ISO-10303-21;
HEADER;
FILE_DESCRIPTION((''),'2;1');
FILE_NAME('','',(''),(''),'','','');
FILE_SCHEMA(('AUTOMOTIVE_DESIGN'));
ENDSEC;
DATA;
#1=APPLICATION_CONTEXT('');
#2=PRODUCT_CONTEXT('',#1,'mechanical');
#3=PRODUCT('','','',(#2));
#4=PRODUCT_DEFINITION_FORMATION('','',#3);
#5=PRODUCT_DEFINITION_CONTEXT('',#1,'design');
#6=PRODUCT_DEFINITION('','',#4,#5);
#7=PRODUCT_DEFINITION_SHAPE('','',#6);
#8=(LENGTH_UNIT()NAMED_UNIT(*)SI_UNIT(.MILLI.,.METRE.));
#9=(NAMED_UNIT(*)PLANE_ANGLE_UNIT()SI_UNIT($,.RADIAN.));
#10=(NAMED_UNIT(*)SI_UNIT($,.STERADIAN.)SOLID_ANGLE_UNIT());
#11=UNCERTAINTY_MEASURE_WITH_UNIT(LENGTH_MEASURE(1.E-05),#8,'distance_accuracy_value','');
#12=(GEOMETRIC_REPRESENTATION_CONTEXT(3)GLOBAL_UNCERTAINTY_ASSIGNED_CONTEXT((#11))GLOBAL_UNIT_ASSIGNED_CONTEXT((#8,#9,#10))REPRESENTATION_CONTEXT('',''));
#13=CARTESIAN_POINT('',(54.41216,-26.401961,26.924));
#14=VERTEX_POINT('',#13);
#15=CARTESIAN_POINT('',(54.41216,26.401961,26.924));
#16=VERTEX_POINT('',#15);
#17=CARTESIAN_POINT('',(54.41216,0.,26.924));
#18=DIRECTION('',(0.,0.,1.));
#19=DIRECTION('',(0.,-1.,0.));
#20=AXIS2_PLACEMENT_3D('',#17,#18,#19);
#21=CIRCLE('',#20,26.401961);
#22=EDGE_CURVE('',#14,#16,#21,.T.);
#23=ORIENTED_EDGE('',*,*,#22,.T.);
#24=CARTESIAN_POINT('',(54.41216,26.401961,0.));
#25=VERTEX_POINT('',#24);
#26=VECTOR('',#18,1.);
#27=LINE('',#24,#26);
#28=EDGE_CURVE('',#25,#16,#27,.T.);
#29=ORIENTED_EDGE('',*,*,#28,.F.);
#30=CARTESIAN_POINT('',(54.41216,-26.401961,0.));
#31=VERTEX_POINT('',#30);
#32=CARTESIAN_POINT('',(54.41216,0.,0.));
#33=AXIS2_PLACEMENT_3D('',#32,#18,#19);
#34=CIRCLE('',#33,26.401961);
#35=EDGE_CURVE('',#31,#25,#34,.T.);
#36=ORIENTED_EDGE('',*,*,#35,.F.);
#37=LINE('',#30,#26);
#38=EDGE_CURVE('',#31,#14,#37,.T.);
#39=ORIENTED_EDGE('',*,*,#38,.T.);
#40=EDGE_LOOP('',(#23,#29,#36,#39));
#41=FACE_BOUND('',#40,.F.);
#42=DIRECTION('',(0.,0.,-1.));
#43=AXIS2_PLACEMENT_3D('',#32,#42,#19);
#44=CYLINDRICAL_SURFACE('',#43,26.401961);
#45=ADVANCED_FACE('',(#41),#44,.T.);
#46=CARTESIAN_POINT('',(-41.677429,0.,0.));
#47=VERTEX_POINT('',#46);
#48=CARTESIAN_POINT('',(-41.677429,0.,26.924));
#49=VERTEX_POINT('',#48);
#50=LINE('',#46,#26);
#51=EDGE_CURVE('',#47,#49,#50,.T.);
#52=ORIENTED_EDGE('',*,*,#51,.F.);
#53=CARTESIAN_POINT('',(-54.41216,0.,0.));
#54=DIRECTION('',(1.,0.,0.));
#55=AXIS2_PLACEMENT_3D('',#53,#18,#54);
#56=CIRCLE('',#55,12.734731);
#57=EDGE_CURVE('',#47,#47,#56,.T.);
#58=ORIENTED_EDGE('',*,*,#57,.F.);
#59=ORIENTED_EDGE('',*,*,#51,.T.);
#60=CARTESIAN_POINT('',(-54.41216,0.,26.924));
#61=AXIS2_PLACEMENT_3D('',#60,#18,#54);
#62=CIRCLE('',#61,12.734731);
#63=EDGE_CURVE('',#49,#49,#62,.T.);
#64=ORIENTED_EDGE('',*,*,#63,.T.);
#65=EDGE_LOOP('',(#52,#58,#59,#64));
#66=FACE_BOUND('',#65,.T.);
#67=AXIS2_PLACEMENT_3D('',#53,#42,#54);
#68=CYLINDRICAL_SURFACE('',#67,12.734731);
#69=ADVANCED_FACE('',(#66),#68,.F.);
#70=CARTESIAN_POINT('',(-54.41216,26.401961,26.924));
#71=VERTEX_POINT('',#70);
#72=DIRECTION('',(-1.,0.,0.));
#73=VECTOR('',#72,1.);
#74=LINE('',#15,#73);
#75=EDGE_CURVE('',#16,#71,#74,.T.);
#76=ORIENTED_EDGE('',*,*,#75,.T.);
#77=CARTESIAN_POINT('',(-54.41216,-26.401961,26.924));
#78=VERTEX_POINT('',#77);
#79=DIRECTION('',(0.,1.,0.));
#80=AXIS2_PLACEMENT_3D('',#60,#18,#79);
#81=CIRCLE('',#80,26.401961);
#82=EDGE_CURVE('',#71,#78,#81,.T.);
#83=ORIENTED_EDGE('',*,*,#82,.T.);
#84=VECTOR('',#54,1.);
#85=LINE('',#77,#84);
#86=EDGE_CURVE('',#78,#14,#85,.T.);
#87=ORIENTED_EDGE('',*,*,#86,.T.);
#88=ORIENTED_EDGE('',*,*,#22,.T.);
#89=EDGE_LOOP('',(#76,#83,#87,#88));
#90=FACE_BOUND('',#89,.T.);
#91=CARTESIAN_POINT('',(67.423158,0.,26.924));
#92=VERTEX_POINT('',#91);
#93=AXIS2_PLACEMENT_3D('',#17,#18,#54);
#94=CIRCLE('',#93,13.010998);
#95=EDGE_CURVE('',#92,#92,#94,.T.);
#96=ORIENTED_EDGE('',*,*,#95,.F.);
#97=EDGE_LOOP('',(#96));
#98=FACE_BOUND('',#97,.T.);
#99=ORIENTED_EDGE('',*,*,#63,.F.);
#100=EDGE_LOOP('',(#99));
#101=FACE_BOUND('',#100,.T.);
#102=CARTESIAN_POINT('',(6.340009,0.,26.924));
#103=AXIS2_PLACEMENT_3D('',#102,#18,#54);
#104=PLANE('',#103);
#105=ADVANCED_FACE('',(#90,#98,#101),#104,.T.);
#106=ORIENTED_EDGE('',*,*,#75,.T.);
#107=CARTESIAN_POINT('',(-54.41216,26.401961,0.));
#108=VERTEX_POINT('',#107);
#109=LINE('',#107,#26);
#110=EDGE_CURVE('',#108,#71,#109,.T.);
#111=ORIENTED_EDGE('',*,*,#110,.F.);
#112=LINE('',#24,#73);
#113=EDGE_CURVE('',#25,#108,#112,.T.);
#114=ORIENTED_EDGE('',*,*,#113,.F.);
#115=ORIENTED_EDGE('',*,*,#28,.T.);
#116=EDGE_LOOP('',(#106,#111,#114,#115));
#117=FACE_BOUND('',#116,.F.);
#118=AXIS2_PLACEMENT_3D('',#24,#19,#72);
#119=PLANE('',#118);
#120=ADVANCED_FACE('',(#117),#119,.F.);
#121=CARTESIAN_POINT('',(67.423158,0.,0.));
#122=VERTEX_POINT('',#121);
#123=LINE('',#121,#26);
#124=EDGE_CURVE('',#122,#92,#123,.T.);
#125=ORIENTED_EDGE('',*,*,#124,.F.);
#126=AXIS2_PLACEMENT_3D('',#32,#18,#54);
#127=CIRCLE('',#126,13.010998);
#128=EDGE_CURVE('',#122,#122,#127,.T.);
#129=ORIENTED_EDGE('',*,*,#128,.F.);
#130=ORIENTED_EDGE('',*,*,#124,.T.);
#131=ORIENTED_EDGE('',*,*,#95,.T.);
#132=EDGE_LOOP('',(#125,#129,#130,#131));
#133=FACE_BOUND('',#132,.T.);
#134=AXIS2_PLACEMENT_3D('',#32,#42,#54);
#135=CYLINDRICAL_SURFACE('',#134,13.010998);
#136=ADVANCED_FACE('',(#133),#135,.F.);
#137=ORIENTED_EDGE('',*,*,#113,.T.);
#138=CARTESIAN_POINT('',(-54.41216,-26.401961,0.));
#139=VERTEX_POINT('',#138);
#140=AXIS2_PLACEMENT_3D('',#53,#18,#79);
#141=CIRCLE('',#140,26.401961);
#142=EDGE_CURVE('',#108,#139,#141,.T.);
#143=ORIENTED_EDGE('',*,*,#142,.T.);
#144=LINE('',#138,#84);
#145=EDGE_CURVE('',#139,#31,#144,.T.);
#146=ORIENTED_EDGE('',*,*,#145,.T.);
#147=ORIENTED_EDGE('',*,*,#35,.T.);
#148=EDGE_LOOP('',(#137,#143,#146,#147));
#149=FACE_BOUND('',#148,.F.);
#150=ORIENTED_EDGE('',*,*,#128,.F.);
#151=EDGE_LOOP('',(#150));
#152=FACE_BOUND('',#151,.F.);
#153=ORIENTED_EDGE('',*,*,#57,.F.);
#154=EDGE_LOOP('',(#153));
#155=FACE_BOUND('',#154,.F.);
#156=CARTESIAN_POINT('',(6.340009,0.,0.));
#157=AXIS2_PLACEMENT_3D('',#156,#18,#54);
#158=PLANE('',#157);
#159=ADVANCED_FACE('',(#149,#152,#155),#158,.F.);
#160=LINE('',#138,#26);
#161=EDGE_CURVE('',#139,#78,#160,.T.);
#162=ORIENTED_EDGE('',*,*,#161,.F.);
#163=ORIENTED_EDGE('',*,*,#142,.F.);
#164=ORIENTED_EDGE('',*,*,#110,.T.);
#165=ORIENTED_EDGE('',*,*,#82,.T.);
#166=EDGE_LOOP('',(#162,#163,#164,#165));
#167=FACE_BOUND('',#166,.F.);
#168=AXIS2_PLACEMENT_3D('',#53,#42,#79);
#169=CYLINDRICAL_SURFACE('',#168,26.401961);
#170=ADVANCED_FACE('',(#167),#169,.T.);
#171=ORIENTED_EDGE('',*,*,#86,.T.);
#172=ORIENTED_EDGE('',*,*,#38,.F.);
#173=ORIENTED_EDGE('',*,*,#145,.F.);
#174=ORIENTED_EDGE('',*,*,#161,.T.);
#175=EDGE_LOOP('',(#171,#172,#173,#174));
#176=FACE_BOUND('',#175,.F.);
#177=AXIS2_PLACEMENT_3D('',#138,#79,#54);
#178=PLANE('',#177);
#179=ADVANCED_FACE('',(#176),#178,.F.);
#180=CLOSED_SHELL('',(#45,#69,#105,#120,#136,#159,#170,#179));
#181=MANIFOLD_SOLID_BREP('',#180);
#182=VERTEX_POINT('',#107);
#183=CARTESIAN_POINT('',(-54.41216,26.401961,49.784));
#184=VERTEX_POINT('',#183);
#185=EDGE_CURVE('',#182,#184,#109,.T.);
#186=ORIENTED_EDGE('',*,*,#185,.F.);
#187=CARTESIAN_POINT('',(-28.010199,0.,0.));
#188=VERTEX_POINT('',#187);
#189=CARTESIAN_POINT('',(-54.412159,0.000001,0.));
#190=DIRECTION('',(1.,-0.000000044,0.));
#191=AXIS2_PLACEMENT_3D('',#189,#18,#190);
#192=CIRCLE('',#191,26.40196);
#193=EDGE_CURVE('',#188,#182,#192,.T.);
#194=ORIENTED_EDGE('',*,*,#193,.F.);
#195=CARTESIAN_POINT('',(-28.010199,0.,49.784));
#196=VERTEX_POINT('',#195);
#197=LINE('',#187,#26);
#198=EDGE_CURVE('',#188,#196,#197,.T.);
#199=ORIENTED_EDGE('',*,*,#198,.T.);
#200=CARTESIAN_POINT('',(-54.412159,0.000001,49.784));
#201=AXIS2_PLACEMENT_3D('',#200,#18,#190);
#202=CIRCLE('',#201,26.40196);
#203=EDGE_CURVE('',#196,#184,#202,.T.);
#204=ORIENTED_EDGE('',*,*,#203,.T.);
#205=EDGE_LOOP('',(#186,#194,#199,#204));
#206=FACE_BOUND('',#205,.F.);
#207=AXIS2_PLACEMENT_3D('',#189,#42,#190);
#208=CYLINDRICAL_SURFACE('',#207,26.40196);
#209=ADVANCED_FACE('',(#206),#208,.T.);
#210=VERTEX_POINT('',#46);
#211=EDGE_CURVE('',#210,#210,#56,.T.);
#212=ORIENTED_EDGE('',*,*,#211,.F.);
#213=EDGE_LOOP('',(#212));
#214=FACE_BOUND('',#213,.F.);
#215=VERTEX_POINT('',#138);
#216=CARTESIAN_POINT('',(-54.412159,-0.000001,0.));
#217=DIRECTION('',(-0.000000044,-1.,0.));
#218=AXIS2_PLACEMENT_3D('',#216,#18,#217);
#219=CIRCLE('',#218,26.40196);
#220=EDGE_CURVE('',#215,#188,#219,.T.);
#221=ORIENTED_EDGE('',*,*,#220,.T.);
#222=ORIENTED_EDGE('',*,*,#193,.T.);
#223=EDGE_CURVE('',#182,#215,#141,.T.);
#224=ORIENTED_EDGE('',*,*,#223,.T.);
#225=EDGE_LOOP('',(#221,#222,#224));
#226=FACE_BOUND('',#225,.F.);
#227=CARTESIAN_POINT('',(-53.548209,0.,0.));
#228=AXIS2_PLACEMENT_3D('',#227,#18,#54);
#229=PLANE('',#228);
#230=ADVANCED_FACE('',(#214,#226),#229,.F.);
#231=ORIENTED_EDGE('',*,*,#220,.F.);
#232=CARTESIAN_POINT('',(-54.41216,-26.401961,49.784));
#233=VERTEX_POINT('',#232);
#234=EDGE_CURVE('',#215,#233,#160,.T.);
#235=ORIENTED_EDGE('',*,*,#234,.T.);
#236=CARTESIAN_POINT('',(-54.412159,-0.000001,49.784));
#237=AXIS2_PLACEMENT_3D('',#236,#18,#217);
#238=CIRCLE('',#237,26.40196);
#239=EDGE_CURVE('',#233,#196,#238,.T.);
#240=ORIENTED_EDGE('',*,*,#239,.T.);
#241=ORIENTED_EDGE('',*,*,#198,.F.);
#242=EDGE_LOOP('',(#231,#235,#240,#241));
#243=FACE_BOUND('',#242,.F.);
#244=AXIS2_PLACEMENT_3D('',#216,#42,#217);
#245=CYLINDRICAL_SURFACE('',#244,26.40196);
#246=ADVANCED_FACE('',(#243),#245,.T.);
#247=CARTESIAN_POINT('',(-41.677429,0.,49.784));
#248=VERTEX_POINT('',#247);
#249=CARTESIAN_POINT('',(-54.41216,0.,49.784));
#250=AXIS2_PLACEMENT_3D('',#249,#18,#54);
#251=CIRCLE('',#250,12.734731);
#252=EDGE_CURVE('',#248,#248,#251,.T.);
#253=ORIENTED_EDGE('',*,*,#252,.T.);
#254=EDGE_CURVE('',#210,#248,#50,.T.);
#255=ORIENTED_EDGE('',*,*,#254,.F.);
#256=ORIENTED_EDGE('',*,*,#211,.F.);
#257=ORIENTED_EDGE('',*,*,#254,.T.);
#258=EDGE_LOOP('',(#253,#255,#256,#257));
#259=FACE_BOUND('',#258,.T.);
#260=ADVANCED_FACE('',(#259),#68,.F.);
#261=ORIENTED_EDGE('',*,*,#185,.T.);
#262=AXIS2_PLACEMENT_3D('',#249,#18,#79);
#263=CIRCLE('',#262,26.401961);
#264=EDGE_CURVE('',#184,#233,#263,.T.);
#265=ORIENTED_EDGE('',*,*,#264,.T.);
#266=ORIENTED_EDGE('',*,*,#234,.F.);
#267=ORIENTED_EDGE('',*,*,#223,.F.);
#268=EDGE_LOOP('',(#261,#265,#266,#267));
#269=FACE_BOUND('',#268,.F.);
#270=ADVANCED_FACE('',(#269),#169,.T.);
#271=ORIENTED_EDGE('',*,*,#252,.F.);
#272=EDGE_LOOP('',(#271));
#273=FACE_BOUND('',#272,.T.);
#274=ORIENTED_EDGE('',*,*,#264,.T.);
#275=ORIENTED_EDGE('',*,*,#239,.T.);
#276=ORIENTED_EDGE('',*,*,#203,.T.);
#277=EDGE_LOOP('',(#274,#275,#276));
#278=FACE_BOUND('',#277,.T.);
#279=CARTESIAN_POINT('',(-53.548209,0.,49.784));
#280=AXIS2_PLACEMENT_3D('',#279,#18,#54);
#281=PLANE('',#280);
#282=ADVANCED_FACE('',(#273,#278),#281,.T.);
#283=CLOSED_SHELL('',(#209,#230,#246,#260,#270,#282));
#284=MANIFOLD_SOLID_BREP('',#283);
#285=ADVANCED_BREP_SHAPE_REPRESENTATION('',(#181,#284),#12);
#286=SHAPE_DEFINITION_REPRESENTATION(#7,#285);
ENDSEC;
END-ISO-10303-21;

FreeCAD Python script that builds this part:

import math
import FreeCAD as App
import Part
import Sketcher
Q = App.Units.Quantity

doc = App.newDocument("Part")
body = doc.addObject("PartDesign::Body", "Body")

# Sketch on XY plane
sketch1 = body.newObject("Sketcher::SketchObject", "Sketch")
sketch1.AttachmentSupport = (doc.getObject("XY_Plane"), [""])
sketch1.MapMode = "FlatFace"
sketch1.addGeometry(Part.ArcOfCircle(Part.Circle(App.Vector(-54, 0, 0), App.Vector(0, 0, 1), 26), math.radians(90), math.radians(270)), False)
sketch1.addGeometry(Part.ArcOfCircle(Part.Circle(App.Vector(-54, 0, 0), App.Vector(0, 0, 1), 26), math.radians(-90), math.radians(0)), False)
sketch1.addGeometry(Part.ArcOfCircle(Part.Circle(App.Vector(-54, 0, 0), App.Vector(0, 0, 1), 26), math.radians(0), math.radians(90)), False)
sketch1.addGeometry(Part.Circle(App.Vector(-54, 0, 0), App.Vector(0, 0, 1), 13), False)
sketch1.addConstraint(Sketcher.Constraint("Tangent", 0, 2, 1, 1))
sketch1.addConstraint(Sketcher.Constraint("Tangent", 1, 2, 2, 1))
sketch1.addConstraint(Sketcher.Constraint("Tangent", 2, 2, 0, 1))
sketch1.addConstraint(Sketcher.Constraint("Coincident", 3, 3, 0, 3))
sketch1.addConstraint(Sketcher.Constraint("Symmetric", 0, 2, 2, 2, -1))
sketch1.addConstraint(Sketcher.Constraint("PointOnObject", 1, 2, -1))
sketch1.addConstraint(Sketcher.Constraint("Vertical", 3, 3, 0, 2))
sketch1.addConstraint(Sketcher.Constraint("Diameter", 3, Q("25.469462 mm")))
sketch1.addConstraint(Sketcher.Constraint("Radius", 0, Q("26.401961 mm")))
sketch1.addConstraint(Sketcher.Constraint("DistanceX", 1, 2, -1, 1, Q("28.010199 mm")))
pad1 = body.newObject("PartDesign::Pad", "Pad")
pad1.Profile = sketch1
pad1.Length = Q("1.96 in")
body2 = doc.addObject("PartDesign::Body", "Body001")

# Sketch on XY plane
sketch2 = body2.newObject("Sketcher::SketchObject", "Sketch001")
sketch2.AttachmentSupport = (doc.getObject("XY_Plane001"), [""])
sketch2.MapMode = "FlatFace"
sketch2.addGeometry(Part.LineSegment(App.Vector(-54, -26, 0), App.Vector(54, -26, 0)), False)
sketch2.addGeometry(Part.ArcOfCircle(Part.Circle(App.Vector(54, 0, 0), App.Vector(0, 0, 1), 26), math.radians(-90), math.radians(90)), False)
sketch2.addGeometry(Part.LineSegment(App.Vector(54, 26, 0), App.Vector(-54, 26, 0)), False)
sketch2.addGeometry(Part.ArcOfCircle(Part.Circle(App.Vector(-54, 0, 0), App.Vector(0, 0, 1), 26), math.radians(90), math.radians(270)), False)
sketch2.addGeometry(Part.Circle(App.Vector(-54, 0, 0), App.Vector(0, 0, 1), 13), False)
sketch2.addGeometry(Part.Circle(App.Vector(54, 0, 0), App.Vector(0, 0, 1), 13), False)
sketch2.addConstraint(Sketcher.Constraint("Tangent", 0, 2, 1, 1))
sketch2.addConstraint(Sketcher.Constraint("Tangent", 1, 2, 2, 1))
sketch2.addConstraint(Sketcher.Constraint("Tangent", 2, 2, 3, 1))
sketch2.addConstraint(Sketcher.Constraint("Tangent", 3, 2, 0, 1))
sketch2.addConstraint(Sketcher.Constraint("Horizontal", 0))
sketch2.addConstraint(Sketcher.Constraint("Horizontal", 2))
sketch2.addConstraint(Sketcher.Constraint("Coincident", 4, 3, 3, 3))
sketch2.addConstraint(Sketcher.Constraint("Coincident", 5, 3, 1, 3))
sketch2.addConstraint(Sketcher.Constraint("Symmetric", 1, 3, 3, 3, -1, 1))
sketch2.addConstraint(Sketcher.Constraint("Diameter", 4, Q("25.469462 mm")))
sketch2.addConstraint(Sketcher.Constraint("Radius", 1, Q("26.401961 mm")))
sketch2.addConstraint(Sketcher.Constraint("Diameter", 5, Q("26.021996 mm")))
sketch2.addConstraint(Sketcher.Constraint("DistanceX", 0, 1, 0, 2, Q("108.82432 mm")))
pad2 = body2.newObject("PartDesign::Pad", "Pad001")
pad2.Profile = sketch2
pad2.Length = Q("1.06 in")

doc.recompute()
